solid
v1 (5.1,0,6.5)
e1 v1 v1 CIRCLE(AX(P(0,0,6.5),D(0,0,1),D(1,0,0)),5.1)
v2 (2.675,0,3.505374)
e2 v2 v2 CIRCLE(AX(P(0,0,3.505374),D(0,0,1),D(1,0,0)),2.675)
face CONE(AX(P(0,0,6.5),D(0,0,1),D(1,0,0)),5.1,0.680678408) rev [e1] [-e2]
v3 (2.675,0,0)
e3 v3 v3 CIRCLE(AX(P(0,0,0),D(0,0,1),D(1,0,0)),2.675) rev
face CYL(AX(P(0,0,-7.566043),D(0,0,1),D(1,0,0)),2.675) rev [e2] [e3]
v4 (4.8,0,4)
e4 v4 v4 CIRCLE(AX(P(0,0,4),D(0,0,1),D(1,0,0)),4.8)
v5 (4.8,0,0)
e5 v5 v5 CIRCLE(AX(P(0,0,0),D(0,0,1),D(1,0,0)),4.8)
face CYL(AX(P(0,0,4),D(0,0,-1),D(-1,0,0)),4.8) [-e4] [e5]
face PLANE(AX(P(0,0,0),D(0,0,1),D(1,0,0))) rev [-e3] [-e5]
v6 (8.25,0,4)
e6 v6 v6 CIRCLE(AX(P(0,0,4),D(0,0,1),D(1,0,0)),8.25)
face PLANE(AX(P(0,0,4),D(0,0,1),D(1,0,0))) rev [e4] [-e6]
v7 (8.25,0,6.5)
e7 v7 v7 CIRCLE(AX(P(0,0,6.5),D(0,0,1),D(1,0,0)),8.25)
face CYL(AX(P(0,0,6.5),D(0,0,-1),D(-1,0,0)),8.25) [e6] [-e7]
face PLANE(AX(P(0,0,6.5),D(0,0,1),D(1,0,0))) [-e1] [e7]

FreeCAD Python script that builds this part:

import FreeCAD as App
import Part
import Sketcher

V = App.Vector
Q = App.Units.Quantity

doc = App.newDocument("Part")
params = doc.addObject("Spreadsheet::Sheet", "Params")
for row, (alias, value) in enumerate([
    ("sketch1_diameter", "9.6 mm"),
    ("pad1_length", "4 mm"),
    ("sketch2_diameter", "16.5 mm"),
    ("pad2_length", "2.5 mm"),
    ("sketch3_diameter", "5.35 mm"),
    ("pocket1_length", "6.5 mm"),
    ("sketch4_diameter", "10.2 mm"),
    ("pocket2_length", "3 mm"),
    ("pocket2_taper", "-39 deg"),
], start=1):
    params.set(f"A{row}", alias)
    params.set(f"B{row}", "=" + value)
    params.setAlias(f"B{row}", alias)

body = doc.addObject("PartDesign::Body", "Body")

# Sketch on XY plane
sketch1 = doc.addObject("Sketcher::SketchObject", "Sketch")
body.addObject(sketch1)
sketch1.AttachmentSupport = (doc.XY_Plane, [""])
sketch1.MapMode = "FlatFace"
sketch1.addGeometry(Part.Circle(V(0, 0, 0), V(0, 0, 1), 4.8), False)
sketch1.addConstraint([
    Sketcher.Constraint("Coincident", 0, 3, -1, 1),
    Sketcher.Constraint("Diameter", 0, Q("9.6 mm")),
])
sketch1.setExpression("Constraints[1]", "Params.sketch1_diameter")
pad1 = doc.addObject("PartDesign::Pad", "Pad")
body.addObject(pad1)
pad1.Profile = sketch1
pad1.setExpression("Length", "Params.pad1_length")

# Sketch on XY plane
sketch2 = doc.addObject("Sketcher::SketchObject", "Sketch001")
body.addObject(sketch2)
sketch2.AttachmentSupport = (doc.XY_Plane, [""])
sketch2.MapMode = "FlatFace"
sketch2.AttachmentOffset = App.Placement(V(0, 0, 4), App.Rotation())
sketch2.addGeometry(Part.Circle(V(0, 0, 0), V(0, 0, 1), 8), False)
sketch2.addConstraint([
    Sketcher.Constraint("Coincident", 0, 3, -1, 1),
    Sketcher.Constraint("Diameter", 0, Q("16.5 mm")),
])
sketch2.setExpression("Constraints[1]", "Params.sketch2_diameter")
pad2 = doc.addObject("PartDesign::Pad", "Pad001")
body.addObject(pad2)
pad2.Profile = sketch2
pad2.setExpression("Length", "Params.pad2_length")

# Sketch on XY plane
sketch3 = doc.addObject("Sketcher::SketchObject", "Sketch002")
body.addObject(sketch3)
sketch3.AttachmentSupport = (doc.XY_Plane, [""])
sketch3.MapMode = "FlatFace"
sketch3.AttachmentOffset = App.Placement(V(0, 0, 6.5), App.Rotation())
sketch3.addGeometry(Part.Circle(V(0, 0, 0), V(0, 0, 1), 2.7), False)
sketch3.addConstraint([
    Sketcher.Constraint("Coincident", 0, 3, -1, 1),
    Sketcher.Constraint("Diameter", 0, Q("5.35 mm")),
])
sketch3.setExpression("Constraints[1]", "Params.sketch3_diameter")
pocket1 = doc.addObject("PartDesign::Pocket", "Pocket")
body.addObject(pocket1)
pocket1.Profile = sketch3
pocket1.setExpression("Length", "Params.pocket1_length")

# Sketch on XY plane
sketch4 = doc.addObject("Sketcher::SketchObject", "Sketch003")
body.addObject(sketch4)
sketch4.AttachmentSupport = (doc.XY_Plane, [""])
sketch4.MapMode = "FlatFace"
sketch4.AttachmentOffset = App.Placement(V(0, 0, 6.5), App.Rotation())
sketch4.addGeometry(Part.Circle(V(0, 0, 0), V(0, 0, 1), 5), False)
sketch4.addConstraint([
    Sketcher.Constraint("Coincident", 0, 3, -1, 1),
    Sketcher.Constraint("Diameter", 0, Q("10.2 mm")),
])
sketch4.setExpression("Constraints[1]", "Params.sketch4_diameter")
pocket2 = doc.addObject("PartDesign::Pocket", "Pocket001")
body.addObject(pocket2)
pocket2.Profile = sketch4
pocket2.setExpression("Length", "Params.pocket2_length")
pocket2.setExpression("TaperAngle", "Params.pocket2_taper")

doc.recompute()
